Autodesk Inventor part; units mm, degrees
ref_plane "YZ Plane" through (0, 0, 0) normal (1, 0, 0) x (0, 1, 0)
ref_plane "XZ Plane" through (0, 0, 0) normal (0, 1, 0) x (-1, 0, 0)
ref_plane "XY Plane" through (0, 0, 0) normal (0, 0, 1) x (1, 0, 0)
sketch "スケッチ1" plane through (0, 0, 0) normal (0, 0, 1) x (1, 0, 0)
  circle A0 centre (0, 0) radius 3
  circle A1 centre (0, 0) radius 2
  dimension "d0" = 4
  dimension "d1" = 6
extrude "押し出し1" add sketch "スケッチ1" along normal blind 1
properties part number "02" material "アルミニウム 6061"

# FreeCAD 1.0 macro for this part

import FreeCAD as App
import Part
import Sketcher
from FreeCAD import Vector
Q = App.Units.Quantity

doc = App.newDocument("Part")
body = doc.addObject("PartDesign::Body", "Body")

# Sketch on XY plane
sketch1 = body.newObject("Sketcher::SketchObject", "Sketch")
sketch1.AttachmentSupport = (doc.getObject("XY_Plane"), [""])
sketch1.MapMode = "FlatFace"
sketch1.addGeometry(Part.Circle(Vector(0, 0, 0), Vector(0, 0, 1), 3), False)
sketch1.addGeometry(Part.Circle(Vector(0, 0, 0), Vector(0, 0, 1), 2), False)
sketch1.addConstraint(Sketcher.Constraint("Coincident", 0, 3, -1, 1))
sketch1.addConstraint(Sketcher.Constraint("Coincident", 1, 3, -1, 1))
sketch1.addConstraint(Sketcher.Constraint("Diameter", 0, Q("6 mm")))
sketch1.addConstraint(Sketcher.Constraint("Diameter", 1, Q("4 mm")))
pad1 = body.newObject("PartDesign::Pad", "Pad")
pad1.Profile = sketch1
pad1.Length = 1

doc.recompute()
